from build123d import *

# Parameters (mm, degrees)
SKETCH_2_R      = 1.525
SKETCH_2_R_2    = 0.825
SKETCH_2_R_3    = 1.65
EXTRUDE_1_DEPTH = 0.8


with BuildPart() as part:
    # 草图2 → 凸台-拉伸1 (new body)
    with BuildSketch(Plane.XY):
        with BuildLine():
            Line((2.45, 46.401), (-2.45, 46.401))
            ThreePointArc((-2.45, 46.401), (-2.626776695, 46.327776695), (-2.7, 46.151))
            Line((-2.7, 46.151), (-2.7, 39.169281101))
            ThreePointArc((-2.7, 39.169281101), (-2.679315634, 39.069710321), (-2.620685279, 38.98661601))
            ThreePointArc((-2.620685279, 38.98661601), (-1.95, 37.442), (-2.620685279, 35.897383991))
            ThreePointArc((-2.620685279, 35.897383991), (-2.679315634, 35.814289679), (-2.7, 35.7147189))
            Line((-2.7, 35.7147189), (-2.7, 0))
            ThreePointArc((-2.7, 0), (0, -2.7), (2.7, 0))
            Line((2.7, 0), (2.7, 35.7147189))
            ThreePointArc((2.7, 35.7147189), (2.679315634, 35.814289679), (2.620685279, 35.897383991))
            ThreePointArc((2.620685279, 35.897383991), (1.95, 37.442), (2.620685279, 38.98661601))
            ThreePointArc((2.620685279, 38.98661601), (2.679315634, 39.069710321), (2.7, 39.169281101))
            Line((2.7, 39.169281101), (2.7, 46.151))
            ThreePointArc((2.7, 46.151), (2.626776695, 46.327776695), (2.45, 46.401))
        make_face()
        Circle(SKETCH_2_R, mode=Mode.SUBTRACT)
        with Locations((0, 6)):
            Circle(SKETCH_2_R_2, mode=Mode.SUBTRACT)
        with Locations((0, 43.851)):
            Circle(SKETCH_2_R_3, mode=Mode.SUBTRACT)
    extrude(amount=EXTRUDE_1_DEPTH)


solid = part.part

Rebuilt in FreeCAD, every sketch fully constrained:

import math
import FreeCAD as App
import Part
import Sketcher
from FreeCAD import Vector

doc = App.newDocument("Part")
body = doc.addObject("PartDesign::Body", "Body")

sketch1 = doc.addObject("Sketcher::SketchObject", "Sketch")
body.addObject(sketch1)
sketch1.AttachmentSupport = (doc.XY_Plane, [""])
sketch1.MapMode = "FlatFace"
sketch1.addGeometry([
    Part.LineSegment(Vector(2.45, 46.4, 0), Vector(-2.45, 46.4, 0)),
    Part.ArcOfCircle(Part.Circle(Vector(-2.45, 46.15, 0), Vector(0, 0, 1), 0.25), math.radians(90), math.radians(180)),
    Part.LineSegment(Vector(-2.7, 46.15, 0), Vector(-2.7, 39.17, 0)),
    Part.ArcOfCircle(Part.Circle(Vector(-2.45, 39.17, 0), Vector(0, 0, 1), 0.25), math.radians(180), math.radians(227)),
    Part.ArcOfCircle(Part.Circle(Vector(-4.06, 37.44, 0), Vector(0, 0, 1), 2.11), math.radians(-47), math.radians(47)),
    Part.ArcOfCircle(Part.Circle(Vector(-2.45, 35.71, 0), Vector(0, 0, 1), 0.25), math.radians(133), math.radians(180)),
    Part.LineSegment(Vector(-2.7, 35.71, 0), Vector(-2.7, 0, 0)),
    Part.ArcOfCircle(Part.Circle(Vector(0, 0, 0), Vector(0, 0, 1), 2.7), math.radians(180), math.radians(360)),
    Part.LineSegment(Vector(2.7, 0, 0), Vector(2.7, 35.71, 0)),
    Part.ArcOfCircle(Part.Circle(Vector(2.45, 35.71, 0), Vector(0, 0, 1), 0.25), math.radians(0), math.radians(47)),
    Part.ArcOfCircle(Part.Circle(Vector(4.06, 37.44, 0), Vector(0, 0, 1), 2.11), math.radians(133), math.radians(227)),
    Part.ArcOfCircle(Part.Circle(Vector(2.45, 39.17, 0), Vector(0, 0, 1), 0.25), math.radians(-47), math.radians(0)),
    Part.LineSegment(Vector(2.7, 39.17, 0), Vector(2.7, 46.15, 0)),
    Part.ArcOfCircle(Part.Circle(Vector(2.45, 46.15, 0), Vector(0, 0, 1), 0.25), math.radians(0), math.radians(90)),
    Part.Circle(Vector(0, 0, 0), Vector(0, 0, 1), 1.52),
    Part.Circle(Vector(0, 6, 0), Vector(0, 0, 1), 0.82),
    Part.Circle(Vector(0, 43.85, 0), Vector(0, 0, 1), 1.65),
], False)
sketch1.addConstraint([
    Sketcher.Constraint("Tangent", 0, 2, 1, 1),
    Sketcher.Constraint("Tangent", 1, 2, 2, 1),
    Sketcher.Constraint("Tangent", 2, 2, 3, 1),
    Sketcher.Constraint("Tangent", 3, 2, 4, 2),
    Sketcher.Constraint("Tangent", 4, 1, 5, 1),
    Sketcher.Constraint("Tangent", 5, 2, 6, 1),
    Sketcher.Constraint("Tangent", 6, 2, 7, 1),
    Sketcher.Constraint("Tangent", 7, 2, 8, 1),
    Sketcher.Constraint("Tangent", 8, 2, 9, 1),
    Sketcher.Constraint("Tangent", 9, 2, 10, 2),
    Sketcher.Constraint("Tangent", 10, 1, 11, 1),
    Sketcher.Constraint("Tangent", 11, 2, 12, 1),
    Sketcher.Constraint("Tangent", 12, 2, 13, 1),
    Sketcher.Constraint("Tangent", 13, 2, 0, 1),
    Sketcher.Constraint("Horizontal", 0),
    Sketcher.Constraint("Vertical", 2),
    Sketcher.Constraint("Vertical", 6),
    Sketcher.Constraint("Vertical", 8),
    Sketcher.Constraint("Vertical", 12),
    Sketcher.Constraint("Coincident", 7, 3, -1, 1),
    Sketcher.Constraint("Coincident", 14, 3, -1, 1),
    Sketcher.Constraint("Equal", 1, 3),
    Sketcher.Constraint("Equal", 3, 5),
    Sketcher.Constraint("Equal", 5, 9),
    Sketcher.Constraint("Equal", 4, 10),
    Sketcher.Constraint("Equal", 9, 11),
    Sketcher.Constraint("Equal", 11, 13),
    Sketcher.Constraint("Symmetric", 4, 3, 10, 3, -2),
    Sketcher.Constraint("PointOnObject", 15, 3, -2),
    Sketcher.Constraint("PointOnObject", 16, 3, -2),
    Sketcher.Constraint("Horizontal", 3, 3, 11, 3),
    Sketcher.Constraint("Vertical", 3, 3, 5, 3),
    Sketcher.Constraint("Diameter", 16, 3.3),
    Sketcher.Constraint("Radius", 7, 2.7),
    Sketcher.Constraint("Diameter", 14, 3.05),
    Sketcher.Constraint("Diameter", 15, 1.65),
    Sketcher.Constraint("Radius", 1, 0.25),
    Sketcher.Constraint("DistanceY", -1, 1, 15, 3, 6.0),
    Sketcher.Constraint("Radius", 4, 2.114),
    Sketcher.Constraint("DistanceY", 16, 3, 1, 3, 2.3),
    Sketcher.Constraint("DistanceY", -1, 1, 1, 3, 46.151),
    Sketcher.Constraint("DistanceX", 4, 3, -1, 1, 4.064),
    Sketcher.Constraint("DistanceY", -1, 1, 4, 3, 37.442),
])
pad1 = doc.addObject("PartDesign::Pad", "Pad")
body.addObject(pad1)
pad1.Profile = sketch1
pad1.Length = 0.8

doc.recompute()
